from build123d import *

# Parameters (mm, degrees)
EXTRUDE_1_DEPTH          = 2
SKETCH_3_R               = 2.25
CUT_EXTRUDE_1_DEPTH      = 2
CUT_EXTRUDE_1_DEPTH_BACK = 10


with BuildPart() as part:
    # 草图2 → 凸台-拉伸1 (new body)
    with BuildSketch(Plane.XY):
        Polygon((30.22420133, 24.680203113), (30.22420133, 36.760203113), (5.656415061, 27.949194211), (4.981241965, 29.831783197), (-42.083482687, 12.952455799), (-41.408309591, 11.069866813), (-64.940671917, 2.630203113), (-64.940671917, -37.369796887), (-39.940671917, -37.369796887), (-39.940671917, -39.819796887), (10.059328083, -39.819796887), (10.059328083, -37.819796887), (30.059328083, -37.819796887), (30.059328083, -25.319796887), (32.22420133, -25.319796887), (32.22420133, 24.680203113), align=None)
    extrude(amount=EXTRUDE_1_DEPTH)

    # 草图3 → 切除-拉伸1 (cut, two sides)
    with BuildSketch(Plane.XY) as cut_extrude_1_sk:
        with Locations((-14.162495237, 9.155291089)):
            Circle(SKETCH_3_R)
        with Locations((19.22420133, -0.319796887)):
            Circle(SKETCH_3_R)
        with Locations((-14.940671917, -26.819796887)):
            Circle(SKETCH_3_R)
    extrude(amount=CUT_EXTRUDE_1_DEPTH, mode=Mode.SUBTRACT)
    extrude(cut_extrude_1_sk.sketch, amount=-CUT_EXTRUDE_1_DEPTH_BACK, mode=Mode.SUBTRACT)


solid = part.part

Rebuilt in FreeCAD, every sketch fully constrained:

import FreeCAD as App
import Part
import Sketcher


def add_polygon(sketch, points):
    """Adds a closed chain of lines whose ends are joined by coincident constraints."""
    first, n = sketch.GeometryCount, len(points)
    for a, b in zip(points, points[1:] + points[:1]):
        sketch.addGeometry(Part.LineSegment(App.Vector(*a, 0), App.Vector(*b, 0)), False)
    for i in range(n):
        sketch.addConstraint(Sketcher.Constraint("Coincident", first + i, 2, first + (i + 1) % n, 1))

doc = App.newDocument("Part")
body = doc.addObject("PartDesign::Body", "Body")

# Sketch on XY plane
sketch1 = body.newObject("Sketcher::SketchObject", "Sketch")
sketch1.AttachmentSupport = (doc.getObject("XY_Plane"), [""])
sketch1.MapMode = "FlatFace"
add_polygon(sketch1, [(30.2, 24.7), (30.2, 36.8), (5.7, 27.9), (5, 29.8), (-42.1, 13), (-41.4, 11.1), (-64.9, 2.6), (-64.9, -37.4), (-39.9, -37.4), (-39.9, -39.8), (10.1, -39.8), (10.1, -37.8), (30.1, -37.8), (30.1, -25.3), (32.2, -25.3), (32.2, 24.7)])  # lines 0-15
sketch1.addConstraint([
    Sketcher.Constraint("Vertical", 0),
    Sketcher.Constraint("Vertical", 6),
    Sketcher.Constraint("Horizontal", 7),
    Sketcher.Constraint("Vertical", 8),
    Sketcher.Constraint("Horizontal", 9),
    Sketcher.Constraint("Vertical", 10),
    Sketcher.Constraint("Horizontal", 11),
    Sketcher.Constraint("Vertical", 12),
    Sketcher.Constraint("Horizontal", 13),
    Sketcher.Constraint("Vertical", 14),
    Sketcher.Constraint("Horizontal", 15),
    Sketcher.Constraint("Perpendicular", 1, 2),
    Sketcher.Constraint("Perpendicular", 2, 3),
    Sketcher.Constraint("Perpendicular", 3, 4),
    Sketcher.Constraint("Perpendicular", 4, 5),
    Sketcher.Constraint("Equal", 15, 10),
    Sketcher.Constraint("Equal", 9, 14),
    Sketcher.Constraint("Equal", 2, 4),
    Sketcher.Constraint("DistanceX", 7, 1, 7, 2, 25.0),
    Sketcher.Constraint("DistanceX", 9, 1, 9, 2, 50.0),
    Sketcher.Constraint("DistanceX", 11, 1, 11, 2, 20.0),
    Sketcher.Constraint("DistanceX", 15, 2, 15, 1, 2.0),
    Sketcher.Constraint("DistanceY", 6, 2, 6, 1, 40.0),
    Sketcher.Constraint("Distance", 2, 2.0),
    Sketcher.Constraint("Distance", 3, 50.0),
    Sketcher.Constraint("Distance", 5, 25.0),
    Sketcher.Constraint("DistanceY", 12, 1, 12, 2, 12.5),
    Sketcher.Constraint("Distance", 1, 26.1),
    Sketcher.Constraint("DistanceY", 0, 1, 0, 2, 12.08),
    Sketcher.Constraint("DistanceY", 8, 2, 8, 1, 2.45),
    Sketcher.Constraint("DistanceX", -1, 1, 0, 2, 30.224201),
    Sketcher.Constraint("DistanceY", -1, 1, 0, 2, 36.760203),
])
pad1 = body.newObject("PartDesign::Pad", "Pad")
pad1.Profile = sketch1
pad1.Length = 2

# Sketch on XY plane
sketch2 = body.newObject("Sketcher::SketchObject", "Sketch001")
sketch2.AttachmentSupport = (doc.getObject("XY_Plane"), [""])
sketch2.MapMode = "FlatFace"
sketch2.addGeometry([
    Part.Circle(App.Vector(-14.2, 9.2, 0), App.Vector(0, 0, 1), 2.2),
    Part.Circle(App.Vector(19.2, -0.3, 0), App.Vector(0, 0, 1), 2.2),
    Part.Circle(App.Vector(-14.9, -26.8, 0), App.Vector(0, 0, 1), 2.2),
], False)
sketch2.addConstraint([
    Sketcher.Constraint("Equal", 0, 1),
    Sketcher.Constraint("Equal", 1, 2),
    Sketcher.Constraint("Diameter", 0, 4.5),
    Sketcher.Constraint("DistanceY", 2, 3, 1, 3, 26.5),
    Sketcher.Constraint("DistanceX", -1, 1, 1, 3, 19.224201),
    Sketcher.Constraint("DistanceY", -1, 1, 0, 3, 9.155291),
    Sketcher.Constraint("DistanceX", 2, 3, -1, 1, 14.940672),
    Sketcher.Constraint("DistanceX", 0, 3, -1, 1, 14.162495),
    Sketcher.Constraint("DistanceY", 1, 3, -1, 1, 0.319797),
])
pocket1 = body.newObject("PartDesign::Pocket", "Pocket")
pocket1.Profile = sketch2
pocket1.Type = "ThroughAll"
pocket1.Midplane = True

doc.recompute()
